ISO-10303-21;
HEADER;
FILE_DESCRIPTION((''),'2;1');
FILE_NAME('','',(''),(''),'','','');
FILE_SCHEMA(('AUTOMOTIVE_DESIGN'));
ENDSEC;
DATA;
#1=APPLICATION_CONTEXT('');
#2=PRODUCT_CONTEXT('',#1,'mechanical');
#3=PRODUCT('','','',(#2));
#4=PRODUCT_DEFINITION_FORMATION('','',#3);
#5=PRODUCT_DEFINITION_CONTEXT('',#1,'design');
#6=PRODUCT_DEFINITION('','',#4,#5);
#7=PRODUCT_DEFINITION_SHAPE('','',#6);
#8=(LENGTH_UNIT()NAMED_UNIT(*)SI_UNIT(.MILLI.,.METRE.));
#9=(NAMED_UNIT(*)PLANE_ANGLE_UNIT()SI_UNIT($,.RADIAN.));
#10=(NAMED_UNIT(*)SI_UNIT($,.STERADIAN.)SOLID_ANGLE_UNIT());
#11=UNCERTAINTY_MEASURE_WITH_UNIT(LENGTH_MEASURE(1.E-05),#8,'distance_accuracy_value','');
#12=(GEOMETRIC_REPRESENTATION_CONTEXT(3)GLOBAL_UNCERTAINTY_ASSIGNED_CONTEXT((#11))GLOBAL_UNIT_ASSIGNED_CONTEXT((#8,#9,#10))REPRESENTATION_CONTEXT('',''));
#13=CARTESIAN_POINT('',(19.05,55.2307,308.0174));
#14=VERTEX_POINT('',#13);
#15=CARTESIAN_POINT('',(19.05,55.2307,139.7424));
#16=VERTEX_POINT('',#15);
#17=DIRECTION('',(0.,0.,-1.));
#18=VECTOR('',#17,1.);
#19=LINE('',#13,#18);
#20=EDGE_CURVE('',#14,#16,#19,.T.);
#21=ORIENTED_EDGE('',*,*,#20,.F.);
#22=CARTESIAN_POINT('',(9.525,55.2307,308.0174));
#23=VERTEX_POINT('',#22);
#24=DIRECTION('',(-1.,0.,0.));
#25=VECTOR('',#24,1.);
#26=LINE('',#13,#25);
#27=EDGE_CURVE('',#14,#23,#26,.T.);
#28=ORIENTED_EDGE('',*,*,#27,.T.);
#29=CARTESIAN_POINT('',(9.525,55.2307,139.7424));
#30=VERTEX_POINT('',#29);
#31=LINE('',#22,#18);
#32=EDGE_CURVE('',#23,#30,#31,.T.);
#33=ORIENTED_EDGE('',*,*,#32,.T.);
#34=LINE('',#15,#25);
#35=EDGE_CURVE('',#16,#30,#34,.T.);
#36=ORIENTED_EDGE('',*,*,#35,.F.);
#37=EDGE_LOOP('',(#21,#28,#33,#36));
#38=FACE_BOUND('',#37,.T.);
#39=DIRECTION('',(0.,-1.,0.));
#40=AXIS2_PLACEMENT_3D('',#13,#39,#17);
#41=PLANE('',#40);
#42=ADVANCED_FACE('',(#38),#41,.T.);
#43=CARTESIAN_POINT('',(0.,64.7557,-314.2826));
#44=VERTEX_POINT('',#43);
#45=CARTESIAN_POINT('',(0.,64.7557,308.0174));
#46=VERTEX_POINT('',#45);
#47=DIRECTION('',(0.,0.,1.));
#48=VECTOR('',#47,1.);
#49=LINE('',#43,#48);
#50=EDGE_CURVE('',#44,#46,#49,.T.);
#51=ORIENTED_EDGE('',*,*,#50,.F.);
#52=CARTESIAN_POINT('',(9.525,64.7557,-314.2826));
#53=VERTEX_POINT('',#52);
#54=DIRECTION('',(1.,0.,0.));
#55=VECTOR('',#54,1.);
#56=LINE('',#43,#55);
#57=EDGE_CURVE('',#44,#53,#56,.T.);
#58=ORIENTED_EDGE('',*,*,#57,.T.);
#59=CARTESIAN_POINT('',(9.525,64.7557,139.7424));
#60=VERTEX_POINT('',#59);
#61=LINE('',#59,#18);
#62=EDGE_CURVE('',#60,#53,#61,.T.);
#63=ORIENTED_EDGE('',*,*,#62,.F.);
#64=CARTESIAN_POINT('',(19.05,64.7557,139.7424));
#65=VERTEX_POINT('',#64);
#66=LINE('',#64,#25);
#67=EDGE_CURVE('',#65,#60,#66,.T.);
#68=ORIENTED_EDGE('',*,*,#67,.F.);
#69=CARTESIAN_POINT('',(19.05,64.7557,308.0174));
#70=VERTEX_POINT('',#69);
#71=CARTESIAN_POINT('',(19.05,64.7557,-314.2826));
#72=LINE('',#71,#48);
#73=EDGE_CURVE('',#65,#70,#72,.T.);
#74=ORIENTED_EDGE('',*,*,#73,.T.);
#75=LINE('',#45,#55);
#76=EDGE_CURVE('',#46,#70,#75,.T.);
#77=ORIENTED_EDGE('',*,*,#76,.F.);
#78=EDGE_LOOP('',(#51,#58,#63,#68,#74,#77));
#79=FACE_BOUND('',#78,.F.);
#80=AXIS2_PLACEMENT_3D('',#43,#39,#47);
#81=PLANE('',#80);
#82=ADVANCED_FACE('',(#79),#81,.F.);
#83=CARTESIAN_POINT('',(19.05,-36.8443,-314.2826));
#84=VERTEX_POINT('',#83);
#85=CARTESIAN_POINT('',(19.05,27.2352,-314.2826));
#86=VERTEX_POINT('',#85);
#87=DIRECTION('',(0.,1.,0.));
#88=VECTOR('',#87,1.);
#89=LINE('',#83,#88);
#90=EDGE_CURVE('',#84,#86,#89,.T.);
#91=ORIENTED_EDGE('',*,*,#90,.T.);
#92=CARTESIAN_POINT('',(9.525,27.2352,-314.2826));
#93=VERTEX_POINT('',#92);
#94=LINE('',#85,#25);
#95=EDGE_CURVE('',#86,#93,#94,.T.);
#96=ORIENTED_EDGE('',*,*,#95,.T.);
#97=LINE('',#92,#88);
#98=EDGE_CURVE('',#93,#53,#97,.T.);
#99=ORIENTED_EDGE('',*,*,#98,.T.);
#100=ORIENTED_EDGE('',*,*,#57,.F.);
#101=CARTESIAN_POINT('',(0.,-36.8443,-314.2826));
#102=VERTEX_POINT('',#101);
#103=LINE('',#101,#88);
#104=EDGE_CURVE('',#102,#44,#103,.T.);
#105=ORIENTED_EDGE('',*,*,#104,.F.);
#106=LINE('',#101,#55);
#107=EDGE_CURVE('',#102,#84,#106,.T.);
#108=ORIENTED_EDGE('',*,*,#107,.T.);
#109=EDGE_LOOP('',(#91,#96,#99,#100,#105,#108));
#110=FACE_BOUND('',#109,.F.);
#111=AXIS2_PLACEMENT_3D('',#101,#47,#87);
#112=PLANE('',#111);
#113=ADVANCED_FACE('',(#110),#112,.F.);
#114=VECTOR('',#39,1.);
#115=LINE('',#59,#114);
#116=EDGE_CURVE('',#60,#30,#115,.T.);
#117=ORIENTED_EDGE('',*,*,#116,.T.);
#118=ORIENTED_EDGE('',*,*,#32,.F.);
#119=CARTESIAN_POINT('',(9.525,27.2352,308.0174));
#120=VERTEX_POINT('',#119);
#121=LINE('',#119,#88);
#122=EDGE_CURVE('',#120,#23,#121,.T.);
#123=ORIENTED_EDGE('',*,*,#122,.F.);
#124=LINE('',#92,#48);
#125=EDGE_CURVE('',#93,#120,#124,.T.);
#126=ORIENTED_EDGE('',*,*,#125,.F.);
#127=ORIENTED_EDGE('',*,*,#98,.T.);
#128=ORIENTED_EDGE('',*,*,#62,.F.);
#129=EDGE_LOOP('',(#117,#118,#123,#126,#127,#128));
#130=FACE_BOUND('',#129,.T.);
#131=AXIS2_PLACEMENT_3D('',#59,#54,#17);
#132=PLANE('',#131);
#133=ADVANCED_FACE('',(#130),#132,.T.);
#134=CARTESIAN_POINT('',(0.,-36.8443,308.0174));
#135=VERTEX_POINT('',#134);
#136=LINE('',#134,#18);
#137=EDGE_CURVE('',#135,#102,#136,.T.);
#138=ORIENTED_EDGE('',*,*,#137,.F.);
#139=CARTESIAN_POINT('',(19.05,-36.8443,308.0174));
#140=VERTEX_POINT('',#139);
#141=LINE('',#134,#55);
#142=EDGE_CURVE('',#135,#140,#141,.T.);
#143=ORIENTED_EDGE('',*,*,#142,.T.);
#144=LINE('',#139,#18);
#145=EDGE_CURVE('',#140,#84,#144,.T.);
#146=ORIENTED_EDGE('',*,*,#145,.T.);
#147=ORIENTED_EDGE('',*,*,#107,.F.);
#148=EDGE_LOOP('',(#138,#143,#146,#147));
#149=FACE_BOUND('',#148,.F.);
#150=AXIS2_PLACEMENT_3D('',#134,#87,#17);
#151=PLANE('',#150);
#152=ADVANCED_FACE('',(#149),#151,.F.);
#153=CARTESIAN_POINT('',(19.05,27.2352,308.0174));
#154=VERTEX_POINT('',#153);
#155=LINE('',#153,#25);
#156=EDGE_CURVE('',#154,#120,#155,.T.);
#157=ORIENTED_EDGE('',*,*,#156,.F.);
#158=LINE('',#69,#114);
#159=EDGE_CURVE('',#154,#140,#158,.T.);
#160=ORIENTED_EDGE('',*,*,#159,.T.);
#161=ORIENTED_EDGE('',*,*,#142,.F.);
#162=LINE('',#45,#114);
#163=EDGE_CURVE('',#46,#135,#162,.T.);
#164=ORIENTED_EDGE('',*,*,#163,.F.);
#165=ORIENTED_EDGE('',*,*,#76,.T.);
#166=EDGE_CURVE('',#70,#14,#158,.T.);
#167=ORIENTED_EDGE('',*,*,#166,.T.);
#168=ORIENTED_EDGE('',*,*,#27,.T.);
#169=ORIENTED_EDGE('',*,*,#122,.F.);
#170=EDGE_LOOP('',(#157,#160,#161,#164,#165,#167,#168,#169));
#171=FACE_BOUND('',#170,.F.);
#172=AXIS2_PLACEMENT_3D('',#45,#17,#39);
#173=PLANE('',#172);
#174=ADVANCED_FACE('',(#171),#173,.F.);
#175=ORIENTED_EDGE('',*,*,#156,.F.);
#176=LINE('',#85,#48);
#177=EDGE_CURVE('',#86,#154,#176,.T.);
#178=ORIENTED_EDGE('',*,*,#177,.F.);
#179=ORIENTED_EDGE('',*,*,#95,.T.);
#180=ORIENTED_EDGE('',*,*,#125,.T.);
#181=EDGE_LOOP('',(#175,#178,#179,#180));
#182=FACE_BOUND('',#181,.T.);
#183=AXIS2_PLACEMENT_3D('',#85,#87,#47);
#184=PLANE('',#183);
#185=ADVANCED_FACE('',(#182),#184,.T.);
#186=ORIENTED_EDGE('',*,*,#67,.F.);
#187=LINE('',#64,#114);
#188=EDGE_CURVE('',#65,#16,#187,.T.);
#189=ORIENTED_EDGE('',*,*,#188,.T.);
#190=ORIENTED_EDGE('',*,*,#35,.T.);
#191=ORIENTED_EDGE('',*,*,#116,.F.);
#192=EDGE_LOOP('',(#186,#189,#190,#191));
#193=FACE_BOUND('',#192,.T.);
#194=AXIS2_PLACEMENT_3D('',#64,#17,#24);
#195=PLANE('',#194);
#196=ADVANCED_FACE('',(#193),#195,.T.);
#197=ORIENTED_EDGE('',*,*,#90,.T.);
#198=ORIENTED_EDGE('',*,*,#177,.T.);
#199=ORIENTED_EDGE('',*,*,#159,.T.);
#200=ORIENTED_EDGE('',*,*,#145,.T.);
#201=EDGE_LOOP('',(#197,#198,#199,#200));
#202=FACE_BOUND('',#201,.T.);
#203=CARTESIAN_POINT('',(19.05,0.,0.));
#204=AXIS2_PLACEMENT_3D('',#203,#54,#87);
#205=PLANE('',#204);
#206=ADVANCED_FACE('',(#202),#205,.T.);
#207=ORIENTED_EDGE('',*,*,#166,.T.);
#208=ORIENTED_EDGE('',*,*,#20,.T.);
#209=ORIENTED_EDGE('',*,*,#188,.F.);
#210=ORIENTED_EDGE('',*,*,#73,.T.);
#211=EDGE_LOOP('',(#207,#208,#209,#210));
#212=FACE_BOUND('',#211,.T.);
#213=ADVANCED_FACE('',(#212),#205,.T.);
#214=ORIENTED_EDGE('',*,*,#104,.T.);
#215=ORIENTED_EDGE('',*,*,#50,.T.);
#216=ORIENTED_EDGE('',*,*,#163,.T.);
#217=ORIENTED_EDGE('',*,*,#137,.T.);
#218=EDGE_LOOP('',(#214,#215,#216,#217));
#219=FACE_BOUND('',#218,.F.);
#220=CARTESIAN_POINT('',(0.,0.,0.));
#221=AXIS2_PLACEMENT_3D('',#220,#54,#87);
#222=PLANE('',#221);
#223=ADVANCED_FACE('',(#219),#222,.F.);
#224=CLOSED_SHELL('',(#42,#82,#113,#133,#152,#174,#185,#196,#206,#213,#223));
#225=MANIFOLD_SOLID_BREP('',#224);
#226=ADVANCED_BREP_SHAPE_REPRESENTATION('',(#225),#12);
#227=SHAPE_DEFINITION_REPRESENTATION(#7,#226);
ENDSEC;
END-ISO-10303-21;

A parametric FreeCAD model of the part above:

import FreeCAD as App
import Part
import Sketcher
from FreeCAD import Vector
Q = App.Units.Quantity


def add_polygon(sketch, points):
    """Adds a closed chain of lines whose ends are joined by coincident constraints."""
    first, n = sketch.GeometryCount, len(points)
    for a, b in zip(points, points[1:] + points[:1]):
        sketch.addGeometry(Part.LineSegment(App.Vector(*a, 0), App.Vector(*b, 0)), False)
    for i in range(n):
        sketch.addConstraint(Sketcher.Constraint("Coincident", first + i, 2, first + (i + 1) % n, 1))

doc = App.newDocument("Part")
body = doc.addObject("PartDesign::Body", "Body")

# Sketch on YZ plane
sketch1 = body.newObject("Sketcher::SketchObject", "Sketch")
sketch1.AttachmentSupport = (doc.getObject("YZ_Plane"), [""])
sketch1.MapMode = "FlatFace"
add_polygon(sketch1, [(65, -314), (65, 308), (-37, 308), (-37, -314)])  # lines 0-3
sketch1.addConstraint([
    Sketcher.Constraint("Vertical", 0),
    Sketcher.Constraint("Horizontal", 1),
    Sketcher.Constraint("Vertical", 2),
    Sketcher.Constraint("Horizontal", 3),
    Sketcher.Constraint("DistanceX", 1, 2, 1, 1, Q("4 in")),
    Sketcher.Constraint("DistanceY", 0, 1, 0, 2, Q("24.5 in")),
    Sketcher.Constraint("DistanceX", -1, 1, 0, 2, 64.7557),
    Sketcher.Constraint("DistanceY", -1, 1, 0, 2, 308.0174),
])
pad1 = body.newObject("PartDesign::Pad", "Pad")
pad1.Profile = sketch1
pad1.Length = Q("0.75 in")

# Sketch on YZ plane
sketch2 = body.newObject("Sketcher::SketchObject", "Sketch001")
sketch2.AttachmentSupport = (doc.getObject("YZ_Plane"), [""])
sketch2.MapMode = "FlatFace"
sketch2.AttachmentOffset = App.Placement(Vector(0, 0, 0.75 * 25.4), App.Rotation())
add_polygon(sketch2, [(55, -314), (55, 308), (46, 308), (46, -314)])  # lines 0-3
sketch2.addConstraint([
    Sketcher.Constraint("Vertical", 0),
    Sketcher.Constraint("Horizontal", 1),
    Sketcher.Constraint("Vertical", 2),
    Sketcher.Constraint("Horizontal", 3),
    Sketcher.Constraint("DistanceX", 1, 2, 1, 1, Q("0.375 in")),
    Sketcher.Constraint("DistanceY", 0, 1, 0, 2, Q("24.5 in")),
    Sketcher.Constraint("DistanceX", -1, 1, 0, 2, 55.2307),
    Sketcher.Constraint("DistanceY", -1, 1, 0, 2, 308.0174),
])
pocket1 = body.newObject("PartDesign::Pocket", "Pocket")
pocket1.Profile = sketch2
pocket1.Length = Q("0.375 in")

# Sketch on XZ plane
sketch3 = body.newObject("Sketcher::SketchObject", "Sketch002")
sketch3.AttachmentSupport = (doc.getObject("XZ_Plane"), [""])
sketch3.MapMode = "FlatFace"
sketch3.AttachmentOffset = App.Placement(Vector(0, 0, -64.7557), App.Rotation())
add_polygon(sketch3, [(10, 140), (19, 140), (19, -314), (10, -314)])  # lines 0-3
sketch3.addConstraint([
    Sketcher.Constraint("Horizontal", 0),
    Sketcher.Constraint("Vertical", 1),
    Sketcher.Constraint("Horizontal", 2),
    Sketcher.Constraint("Vertical", 3),
    Sketcher.Constraint("DistanceX", 0, 1, 0, 2, Q("0.375 in")),
    Sketcher.Constraint("DistanceY", 1, 2, 1, 1, Q("17.875 in")),
    Sketcher.Constraint("DistanceX", -1, 1, 2, 2, Q("0.375 in")),
    Sketcher.Constraint("DistanceY", -1, 1, 0, 2, 139.7424),
])
pocket2 = body.newObject("PartDesign::Pocket", "Pocket001")
pocket2.Profile = sketch3
pocket2.Length = Q("0.375 in")
pocket2.Reversed = True

# Sketch on YZ plane
sketch4 = body.newObject("Sketcher::SketchObject", "Sketch003")
sketch4.AttachmentSupport = (doc.getObject("YZ_Plane"), [""])
sketch4.MapMode = "FlatFace"
sketch4.AttachmentOffset = App.Placement(Vector(0, 0, 0.75 * 25.4), App.Rotation())
add_polygon(sketch4, [(46, -314), (46, 308), (27, 308), (27, -314)])  # lines 0-3
sketch4.addConstraint([
    Sketcher.Constraint("Vertical", 0),
    Sketcher.Constraint("Horizontal", 1),
    Sketcher.Constraint("Vertical", 2),
    Sketcher.Constraint("Horizontal", 3),
    Sketcher.Constraint("DistanceX", 1, 2, 1, 1, Q("0.75 in")),
    Sketcher.Constraint("DistanceY", 0, 1, 0, 2, Q("24.5 in")),
    Sketcher.Constraint("DistanceX", -1, 1, 0, 2, 46.2852),
    Sketcher.Constraint("DistanceY", -1, 1, 0, 2, 308.0174),
])
pocket3 = body.newObject("PartDesign::Pocket", "Pocket002")
pocket3.Profile = sketch4
pocket3.Length = Q("0.375 in")

doc.recompute()
